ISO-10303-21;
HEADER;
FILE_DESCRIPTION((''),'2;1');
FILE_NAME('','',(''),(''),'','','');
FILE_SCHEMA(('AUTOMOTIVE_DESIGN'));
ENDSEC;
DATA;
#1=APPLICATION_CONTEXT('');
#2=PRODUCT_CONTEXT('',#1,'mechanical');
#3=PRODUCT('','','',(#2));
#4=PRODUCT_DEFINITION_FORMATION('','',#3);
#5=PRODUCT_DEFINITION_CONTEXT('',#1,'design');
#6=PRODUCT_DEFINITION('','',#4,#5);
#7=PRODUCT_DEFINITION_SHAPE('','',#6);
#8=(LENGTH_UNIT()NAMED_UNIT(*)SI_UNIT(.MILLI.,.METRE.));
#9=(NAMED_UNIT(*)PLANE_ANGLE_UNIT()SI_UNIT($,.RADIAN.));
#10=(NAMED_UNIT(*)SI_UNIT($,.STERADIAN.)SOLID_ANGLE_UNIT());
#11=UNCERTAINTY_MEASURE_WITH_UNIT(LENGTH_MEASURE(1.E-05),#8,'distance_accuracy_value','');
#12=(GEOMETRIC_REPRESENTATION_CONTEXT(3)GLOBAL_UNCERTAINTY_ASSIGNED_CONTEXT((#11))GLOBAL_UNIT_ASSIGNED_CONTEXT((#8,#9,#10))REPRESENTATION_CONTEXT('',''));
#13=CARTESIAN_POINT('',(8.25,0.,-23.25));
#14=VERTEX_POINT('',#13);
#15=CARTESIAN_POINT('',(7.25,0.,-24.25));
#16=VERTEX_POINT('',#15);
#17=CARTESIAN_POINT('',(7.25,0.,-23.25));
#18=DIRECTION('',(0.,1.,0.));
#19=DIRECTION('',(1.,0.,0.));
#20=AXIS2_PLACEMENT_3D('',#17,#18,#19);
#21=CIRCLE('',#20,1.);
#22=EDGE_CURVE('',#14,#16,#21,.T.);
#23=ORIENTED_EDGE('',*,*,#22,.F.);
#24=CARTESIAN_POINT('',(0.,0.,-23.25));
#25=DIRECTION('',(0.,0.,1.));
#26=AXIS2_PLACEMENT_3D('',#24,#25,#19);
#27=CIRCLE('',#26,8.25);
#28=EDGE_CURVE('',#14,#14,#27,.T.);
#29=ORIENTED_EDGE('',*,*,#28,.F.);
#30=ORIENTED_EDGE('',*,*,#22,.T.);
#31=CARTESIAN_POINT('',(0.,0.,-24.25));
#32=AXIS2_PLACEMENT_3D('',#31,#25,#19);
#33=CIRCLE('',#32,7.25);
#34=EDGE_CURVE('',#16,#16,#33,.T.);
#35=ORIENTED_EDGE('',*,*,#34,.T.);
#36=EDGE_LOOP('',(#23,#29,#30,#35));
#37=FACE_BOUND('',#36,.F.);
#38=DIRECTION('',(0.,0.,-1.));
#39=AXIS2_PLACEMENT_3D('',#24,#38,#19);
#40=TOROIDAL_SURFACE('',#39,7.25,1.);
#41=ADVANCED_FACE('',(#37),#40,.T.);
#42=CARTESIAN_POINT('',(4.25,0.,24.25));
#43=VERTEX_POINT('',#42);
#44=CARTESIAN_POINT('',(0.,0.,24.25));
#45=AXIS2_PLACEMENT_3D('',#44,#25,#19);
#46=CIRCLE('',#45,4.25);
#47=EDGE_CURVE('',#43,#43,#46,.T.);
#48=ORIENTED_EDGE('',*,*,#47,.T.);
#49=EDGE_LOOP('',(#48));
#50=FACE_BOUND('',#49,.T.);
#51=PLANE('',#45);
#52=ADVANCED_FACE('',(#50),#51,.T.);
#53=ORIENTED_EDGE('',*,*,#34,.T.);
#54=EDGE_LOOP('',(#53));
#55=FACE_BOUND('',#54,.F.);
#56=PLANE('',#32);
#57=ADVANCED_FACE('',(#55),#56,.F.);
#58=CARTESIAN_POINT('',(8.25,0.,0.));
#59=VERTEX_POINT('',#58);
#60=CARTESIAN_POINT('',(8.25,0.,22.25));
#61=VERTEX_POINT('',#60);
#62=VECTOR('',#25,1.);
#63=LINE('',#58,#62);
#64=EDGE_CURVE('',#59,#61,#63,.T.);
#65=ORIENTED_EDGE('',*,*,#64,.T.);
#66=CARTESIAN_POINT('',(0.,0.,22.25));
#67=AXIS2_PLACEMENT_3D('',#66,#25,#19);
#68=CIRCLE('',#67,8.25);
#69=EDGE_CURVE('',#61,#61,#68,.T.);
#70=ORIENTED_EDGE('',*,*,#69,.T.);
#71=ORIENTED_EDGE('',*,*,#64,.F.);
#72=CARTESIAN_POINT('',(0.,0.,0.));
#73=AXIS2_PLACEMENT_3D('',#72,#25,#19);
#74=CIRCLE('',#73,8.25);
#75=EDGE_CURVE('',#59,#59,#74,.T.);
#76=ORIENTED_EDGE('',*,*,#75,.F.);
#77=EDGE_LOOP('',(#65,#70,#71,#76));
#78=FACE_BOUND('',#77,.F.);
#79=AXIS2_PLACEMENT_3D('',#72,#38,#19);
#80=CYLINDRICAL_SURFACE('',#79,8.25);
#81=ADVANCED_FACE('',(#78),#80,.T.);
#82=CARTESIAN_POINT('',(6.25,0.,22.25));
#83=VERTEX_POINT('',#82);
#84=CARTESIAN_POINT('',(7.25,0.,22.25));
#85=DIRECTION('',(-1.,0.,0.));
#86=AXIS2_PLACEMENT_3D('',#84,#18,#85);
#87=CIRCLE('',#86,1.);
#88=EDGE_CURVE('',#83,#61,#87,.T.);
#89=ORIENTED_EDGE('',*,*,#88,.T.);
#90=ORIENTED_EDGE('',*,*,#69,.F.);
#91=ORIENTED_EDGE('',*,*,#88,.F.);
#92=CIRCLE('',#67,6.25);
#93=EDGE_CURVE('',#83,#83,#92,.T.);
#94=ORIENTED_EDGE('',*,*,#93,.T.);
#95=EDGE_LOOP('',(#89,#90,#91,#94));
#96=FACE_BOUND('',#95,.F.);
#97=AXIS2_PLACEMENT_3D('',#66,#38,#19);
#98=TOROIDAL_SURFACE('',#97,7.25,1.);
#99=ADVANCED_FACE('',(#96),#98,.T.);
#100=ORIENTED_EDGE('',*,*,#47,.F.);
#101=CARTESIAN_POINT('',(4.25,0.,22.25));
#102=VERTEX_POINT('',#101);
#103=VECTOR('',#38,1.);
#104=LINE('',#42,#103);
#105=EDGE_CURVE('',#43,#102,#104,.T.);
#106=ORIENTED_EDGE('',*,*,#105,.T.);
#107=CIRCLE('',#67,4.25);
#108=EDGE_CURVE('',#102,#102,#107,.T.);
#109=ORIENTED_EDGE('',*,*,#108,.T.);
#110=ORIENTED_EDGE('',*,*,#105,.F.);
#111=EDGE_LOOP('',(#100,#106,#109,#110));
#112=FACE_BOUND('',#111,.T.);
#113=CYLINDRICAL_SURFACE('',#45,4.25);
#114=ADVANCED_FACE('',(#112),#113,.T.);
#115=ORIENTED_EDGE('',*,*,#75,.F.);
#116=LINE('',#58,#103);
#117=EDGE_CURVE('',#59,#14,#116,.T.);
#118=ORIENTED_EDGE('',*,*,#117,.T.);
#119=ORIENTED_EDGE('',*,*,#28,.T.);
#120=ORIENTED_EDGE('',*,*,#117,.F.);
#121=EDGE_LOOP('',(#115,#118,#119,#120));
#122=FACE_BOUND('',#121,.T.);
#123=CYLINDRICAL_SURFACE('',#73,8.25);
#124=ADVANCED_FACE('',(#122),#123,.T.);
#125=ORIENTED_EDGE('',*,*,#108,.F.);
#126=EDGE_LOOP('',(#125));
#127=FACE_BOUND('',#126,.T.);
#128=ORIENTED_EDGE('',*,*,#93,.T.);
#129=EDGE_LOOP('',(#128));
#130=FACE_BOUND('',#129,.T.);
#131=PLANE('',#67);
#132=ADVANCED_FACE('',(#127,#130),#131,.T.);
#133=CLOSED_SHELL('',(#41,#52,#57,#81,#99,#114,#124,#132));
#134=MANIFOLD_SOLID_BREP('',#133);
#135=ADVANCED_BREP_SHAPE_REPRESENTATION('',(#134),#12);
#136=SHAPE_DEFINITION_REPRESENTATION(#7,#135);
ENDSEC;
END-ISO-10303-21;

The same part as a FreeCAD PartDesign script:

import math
import FreeCAD as App
import Part
import Sketcher
from FreeCAD import Vector
Q = App.Units.Quantity


def edges_at(feature, points):
    """Names of the edges that pass closest to the given points."""
    edges = feature.Shape.Edges
    near = lambda p: min(range(len(edges)), key=lambda i: edges[i].distToShape(Part.Vertex(*p))[0])
    return sorted({f"Edge{near(p) + 1}" for p in points})

doc = App.newDocument("Part")
body = doc.addObject("PartDesign::Body", "Body")

# Sketch on XY plane
sketch1 = body.newObject("Sketcher::SketchObject", "Sketch")
sketch1.AttachmentSupport = (doc.getObject("XY_Plane"), [""])
sketch1.MapMode = "FlatFace"
sketch1.addGeometry(Part.Circle(Vector(0, 0, 0), Vector(0, 0, 1), 8), False)
sketch1.addConstraint([
    Sketcher.Constraint("Coincident", 0, 3, -1, 1),
    Sketcher.Constraint("Diameter", 0, Q("16.5 mm")),
])
pad1 = body.newObject("PartDesign::Pad", "Pad")
pad1.Profile = sketch1
pad1.Length = 48.5
pad1.Midplane = True

# Sketch on XY plane
sketch2 = body.newObject("Sketcher::SketchObject", "Sketch001")
sketch2.AttachmentSupport = (doc.getObject("XY_Plane"), [""])
sketch2.MapMode = "FlatFace"
sketch2.AttachmentOffset = App.Placement(Vector(0, 0, 24.25), App.Rotation())
sketch2.addGeometry([
    Part.Circle(Vector(0, 0, 0), Vector(0, 0, 1), 8.2),
    Part.Circle(Vector(0, 0, 0), Vector(0, 0, 1), 4.2),
], False)
sketch2.addConstraint([
    Sketcher.Constraint("Coincident", 0, 3, -1, 1),
    Sketcher.Constraint("Coincident", 1, 3, -1, 1),
    Sketcher.Constraint("Diameter", 1, Q("8.5 mm")),
    Sketcher.Constraint("Diameter", 0, Q("16.5 mm")),
])
pocket1 = body.newObject("PartDesign::Pocket", "Pocket")
pocket1.Profile = sketch2
pocket1.Length = 2
doc.recompute()

fillet = body.newObject("PartDesign::Fillet", "Fillet")
fillet.Base = (pocket1, edges_at(pocket1, [(-8.25, 0, -24.25)]))
fillet.Radius = 1

# Sketch on XZ plane
sketch3 = body.newObject("Sketcher::SketchObject", "Sketch002")
sketch3.AttachmentSupport = (doc.getObject("XZ_Plane"), [""])
sketch3.MapMode = "FlatFace"
sketch3.addGeometry([
    Part.LineSegment(Vector(8.2, 22.2, 0), Vector(6.2, 22.2, 0)),
    Part.ArcOfCircle(Part.Circle(Vector(7.2, 22.2, 0), Vector(0, 0, 1), 1), math.radians(0), math.radians(180)),
], False)
sketch3.addConstraint([
    Sketcher.Constraint("Coincident", 0, 1, 1, 1),
    Sketcher.Constraint("Coincident", 1, 2, 0, 2),
    Sketcher.Constraint("Horizontal", 0),
    Sketcher.Constraint("Horizontal", 1, 3, 0, 1),
    Sketcher.Constraint("Radius", 1, Q("1 mm")),
    Sketcher.Constraint("DistanceX", -1, 1, 0, 1, Q("8.25 mm")),
    Sketcher.Constraint("DistanceY", -1, 1, 1, 3, Q("22.25 mm")),
])
revolution = body.newObject("PartDesign::Revolution", "Revolution")
revolution.Profile = sketch3
revolution.ReferenceAxis = (sketch3, ["V_Axis"])
revolution.Angle = 360

doc.recompute()
